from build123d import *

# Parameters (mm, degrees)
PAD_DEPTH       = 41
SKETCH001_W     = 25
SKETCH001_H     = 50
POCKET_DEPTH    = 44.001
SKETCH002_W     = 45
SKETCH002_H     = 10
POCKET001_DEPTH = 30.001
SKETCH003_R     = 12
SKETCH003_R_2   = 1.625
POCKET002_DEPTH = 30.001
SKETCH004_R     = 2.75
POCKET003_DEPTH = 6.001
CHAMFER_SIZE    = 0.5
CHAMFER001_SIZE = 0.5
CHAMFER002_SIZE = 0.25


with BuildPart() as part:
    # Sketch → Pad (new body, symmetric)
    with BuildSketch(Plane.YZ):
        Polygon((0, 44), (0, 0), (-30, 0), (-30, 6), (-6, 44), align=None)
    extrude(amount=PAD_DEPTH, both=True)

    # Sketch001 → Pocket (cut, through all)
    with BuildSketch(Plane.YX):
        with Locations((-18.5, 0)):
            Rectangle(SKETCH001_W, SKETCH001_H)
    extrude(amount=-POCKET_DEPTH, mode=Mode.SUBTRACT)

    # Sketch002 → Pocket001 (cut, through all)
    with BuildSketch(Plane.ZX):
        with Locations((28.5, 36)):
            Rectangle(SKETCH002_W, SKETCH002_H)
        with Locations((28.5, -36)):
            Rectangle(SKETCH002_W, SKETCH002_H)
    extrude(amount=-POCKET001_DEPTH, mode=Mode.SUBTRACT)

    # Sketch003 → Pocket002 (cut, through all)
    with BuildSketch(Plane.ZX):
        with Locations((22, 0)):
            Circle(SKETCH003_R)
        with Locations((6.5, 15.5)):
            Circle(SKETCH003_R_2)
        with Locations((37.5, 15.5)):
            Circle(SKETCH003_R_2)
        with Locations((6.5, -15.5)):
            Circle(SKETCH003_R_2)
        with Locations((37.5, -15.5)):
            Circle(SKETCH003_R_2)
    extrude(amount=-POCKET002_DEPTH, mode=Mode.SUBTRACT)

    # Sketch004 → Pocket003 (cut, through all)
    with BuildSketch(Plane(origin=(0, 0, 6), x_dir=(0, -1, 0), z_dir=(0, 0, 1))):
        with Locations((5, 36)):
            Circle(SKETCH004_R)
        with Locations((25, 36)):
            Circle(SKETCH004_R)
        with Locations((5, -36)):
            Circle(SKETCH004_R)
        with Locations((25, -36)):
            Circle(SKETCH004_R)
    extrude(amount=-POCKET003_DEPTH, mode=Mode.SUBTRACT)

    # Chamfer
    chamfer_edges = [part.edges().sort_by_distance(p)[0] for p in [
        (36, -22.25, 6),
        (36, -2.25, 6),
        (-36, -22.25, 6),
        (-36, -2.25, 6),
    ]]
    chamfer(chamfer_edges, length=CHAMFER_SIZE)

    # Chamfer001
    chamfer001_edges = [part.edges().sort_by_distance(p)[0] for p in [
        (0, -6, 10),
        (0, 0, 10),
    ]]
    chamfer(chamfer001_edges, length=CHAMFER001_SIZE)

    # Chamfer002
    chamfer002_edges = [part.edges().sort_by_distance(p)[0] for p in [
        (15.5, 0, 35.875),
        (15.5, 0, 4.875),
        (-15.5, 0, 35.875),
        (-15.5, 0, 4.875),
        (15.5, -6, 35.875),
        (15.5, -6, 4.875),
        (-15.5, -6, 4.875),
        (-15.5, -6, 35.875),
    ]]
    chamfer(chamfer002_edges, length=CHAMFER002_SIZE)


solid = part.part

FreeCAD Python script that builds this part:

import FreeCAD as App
import Part
import Sketcher
from FreeCAD import Vector


def edges_at(feature, points):
    """Names of the edges that pass closest to the given points."""
    edges = feature.Shape.Edges
    near = lambda p: min(range(len(edges)), key=lambda i: edges[i].distToShape(Part.Vertex(*p))[0])
    return sorted({f"Edge{near(p) + 1}" for p in points})


def add_polygon(sketch, points):
    """Adds a closed chain of lines whose ends are joined by coincident constraints."""
    first, n = sketch.GeometryCount, len(points)
    for a, b in zip(points, points[1:] + points[:1]):
        sketch.addGeometry(Part.LineSegment(App.Vector(*a, 0), App.Vector(*b, 0)), False)
    for i in range(n):
        sketch.addConstraint(Sketcher.Constraint("Coincident", first + i, 2, first + (i + 1) % n, 1))

doc = App.newDocument("Part")
body = doc.addObject("PartDesign::Body", "Body")

# Sketch on YZ plane
sketch1 = body.newObject("Sketcher::SketchObject", "Sketch")
sketch1.AttachmentSupport = (doc.getObject("YZ_Plane"), [""])
sketch1.MapMode = "FlatFace"
add_polygon(sketch1, [(0, 0), (0, 44), (-6, 44), (-30, 6), (-30, 0)])  # lines 0-4
sketch1.addConstraint(Sketcher.Constraint("Vertical", 0))
sketch1.addConstraint(Sketcher.Constraint("Horizontal", 1))
sketch1.addConstraint(Sketcher.Constraint("Vertical", 3))
sketch1.addConstraint(Sketcher.Constraint("Horizontal", 4))
sketch1.addConstraint(Sketcher.Constraint("Coincident", 4, 2, -1, 1))
sketch1.addConstraint(Sketcher.Constraint("Equal", 1, 3))
sketch1.addConstraint(Sketcher.Constraint("DistanceX", 1, 2, 1, 1, 6.0))
sketch1.addConstraint(Sketcher.Constraint("DistanceX", 4, 1, 4, 2, 30.0))
sketch1.addConstraint(Sketcher.Constraint("DistanceY", 0, 1, 0, 2, 44.0))
pad1 = body.newObject("PartDesign::Pad", "Pad")
pad1.Profile = sketch1
pad1.Length = 82
pad1.Midplane = True

# Sketch on XY plane
sketch2 = body.newObject("Sketcher::SketchObject", "Sketch001")
sketch2.AttachmentSupport = (doc.getObject("XY_Plane"), [""])
sketch2.MapMode = "FlatFace"
add_polygon(sketch2, [(25, -31), (-25, -31), (-25, -6), (25, -6)])  # lines 0-3
sketch2.addConstraint(Sketcher.Constraint("Horizontal", 0))
sketch2.addConstraint(Sketcher.Constraint("Vertical", 1))
sketch2.addConstraint(Sketcher.Constraint("Horizontal", 2))
sketch2.addConstraint(Sketcher.Constraint("Vertical", 3))
sketch2.addConstraint(Sketcher.Constraint("DistanceX", 0, 2, 0, 1, 50.0))
sketch2.addConstraint(Sketcher.Constraint("DistanceY", 1, 1, 1, 2, 25.0))
sketch2.addConstraint(Sketcher.Constraint("DistanceX", 0, 2, -1, 1, 25.0))
sketch2.addConstraint(Sketcher.Constraint("DistanceY", 0, 2, -1, 1, 31.0))
pocket1 = body.newObject("PartDesign::Pocket", "Pocket")
pocket1.Profile = sketch2
pocket1.Type = "ThroughAll"
pocket1.Reversed = True

# Sketch on XZ plane
sketch3 = body.newObject("Sketcher::SketchObject", "Sketch002")
sketch3.AttachmentSupport = (doc.getObject("XZ_Plane"), [""])
sketch3.MapMode = "FlatFace"
add_polygon(sketch3, [(41, 6), (31, 6), (31, 51), (41, 51)])  # lines 0-3
add_polygon(sketch3, [(-31, 6), (-41, 6), (-41, 51), (-31, 51)])  # lines 4-7
sketch3.addConstraint(Sketcher.Constraint("Horizontal", 0))
sketch3.addConstraint(Sketcher.Constraint("Vertical", 1))
sketch3.addConstraint(Sketcher.Constraint("Horizontal", 2))
sketch3.addConstraint(Sketcher.Constraint("Vertical", 3))
sketch3.addConstraint(Sketcher.Constraint("Horizontal", 4))
sketch3.addConstraint(Sketcher.Constraint("Vertical", 5))
sketch3.addConstraint(Sketcher.Constraint("Horizontal", 6))
sketch3.addConstraint(Sketcher.Constraint("Vertical", 7))
sketch3.addConstraint(Sketcher.Constraint("Symmetric", 3, 2, 4, 2, -2))
sketch3.addConstraint(Sketcher.Constraint("Symmetric", 1, 2, 6, 2, -2))
sketch3.addConstraint(Sketcher.Constraint("DistanceX", 0, 2, 0, 1, 10.0))
sketch3.addConstraint(Sketcher.Constraint("DistanceY", 1, 1, 1, 2, 45.0))
sketch3.addConstraint(Sketcher.Constraint("DistanceX", -1, 1, 0, 2, 31.0))
sketch3.addConstraint(Sketcher.Constraint("DistanceY", -1, 1, 0, 2, 6.0))
pocket2 = body.newObject("PartDesign::Pocket", "Pocket001")
pocket2.Profile = sketch3
pocket2.Type = "ThroughAll"
pocket2.Reversed = True

# Sketch on XZ plane
sketch4 = body.newObject("Sketcher::SketchObject", "Sketch003")
sketch4.AttachmentSupport = (doc.getObject("XZ_Plane"), [""])
sketch4.MapMode = "FlatFace"
sketch4.addGeometry(Part.Circle(Vector(0, 22, 0), Vector(0, 0, 1), 12), False)
sketch4.addGeometry(Part.Circle(Vector(15.5, 6.5, 0), Vector(0, 0, 1), 1.6), False)
sketch4.addGeometry(Part.Circle(Vector(15.5, 37.5, 0), Vector(0, 0, 1), 1.6), False)
sketch4.addGeometry(Part.Circle(Vector(-15.5, 6.5, 0), Vector(0, 0, 1), 1.6), False)
sketch4.addGeometry(Part.Circle(Vector(-15.5, 37.5, 0), Vector(0, 0, 1), 1.6), False)
sketch4.addConstraint(Sketcher.Constraint("Equal", 1, 2))
sketch4.addConstraint(Sketcher.Constraint("Equal", 2, 3))
sketch4.addConstraint(Sketcher.Constraint("Equal", 3, 4))
sketch4.addConstraint(Sketcher.Constraint("Symmetric", 1, 3, 3, 3, -2))
sketch4.addConstraint(Sketcher.Constraint("Symmetric", 2, 3, 4, 3, -2))
sketch4.addConstraint(Sketcher.Constraint("PointOnObject", 0, 3, -2))
sketch4.addConstraint(Sketcher.Constraint("Vertical", 1, 3, 2, 3))
sketch4.addConstraint(Sketcher.Constraint("Diameter", 0, 24.0))
sketch4.addConstraint(Sketcher.Constraint("Diameter", 1, 3.25))
sketch4.addConstraint(Sketcher.Constraint("DistanceY", -1, 1, 0, 3, 22.0))
sketch4.addConstraint(Sketcher.Constraint("DistanceY", 1, 3, 2, 3, 31.0))
sketch4.addConstraint(Sketcher.Constraint("DistanceX", 3, 3, 1, 3, 31.0))
sketch4.addConstraint(Sketcher.Constraint("DistanceY", -1, 1, 1, 3, 6.5))
pocket3 = body.newObject("PartDesign::Pocket", "Pocket002")
pocket3.Profile = sketch4
pocket3.Type = "ThroughAll"
pocket3.Reversed = True

# Sketch on XY plane
sketch5 = body.newObject("Sketcher::SketchObject", "Sketch004")
sketch5.AttachmentSupport = (doc.getObject("XY_Plane"), [""])
sketch5.MapMode = "FlatFace"
sketch5.AttachmentOffset = App.Placement(Vector(0, 0, 6), App.Rotation())
sketch5.addGeometry(Part.Circle(Vector(36, -5, 0), Vector(0, 0, 1), 2.8), False)
sketch5.addGeometry(Part.Circle(Vector(36, -25, 0), Vector(0, 0, 1), 2.8), False)
sketch5.addGeometry(Part.Circle(Vector(-36, -5, 0), Vector(0, 0, 1), 2.8), False)
sketch5.addGeometry(Part.Circle(Vector(-36, -25, 0), Vector(0, 0, 1), 2.8), False)
sketch5.addConstraint(Sketcher.Constraint("Equal", 0, 1))
sketch5.addConstraint(Sketcher.Constraint("Equal", 1, 2))
sketch5.addConstraint(Sketcher.Constraint("Equal", 2, 3))
sketch5.addConstraint(Sketcher.Constraint("Symmetric", 0, 3, 2, 3, -2))
sketch5.addConstraint(Sketcher.Constraint("Symmetric", 1, 3, 3, 3, -2))
sketch5.addConstraint(Sketcher.Constraint("Vertical", 0, 3, 1, 3))
sketch5.addConstraint(Sketcher.Constraint("Diameter", 0, 5.5))
sketch5.addConstraint(Sketcher.Constraint("DistanceX", -1, 1, 0, 3, 36.0))
sketch5.addConstraint(Sketcher.Constraint("DistanceY", 0, 3, -1, 1, 5.0))
sketch5.addConstraint(Sketcher.Constraint("DistanceY", 1, 3, -1, 1, 25.0))
pocket4 = body.newObject("PartDesign::Pocket", "Pocket003")
pocket4.Profile = sketch5
pocket4.Type = "ThroughAll"
doc.recompute()

chamfer = body.newObject("PartDesign::Chamfer", "Chamfer")
chamfer.Base = (pocket4, edges_at(pocket4, [
    (36, -22.25, 6),
    (36, -2.25, 6),
    (-36, -22.25, 6),
    (-36, -2.25, 6),
]))
chamfer.Size = 0.5
doc.recompute()

chamfer2 = body.newObject("PartDesign::Chamfer", "Chamfer001")
chamfer2.Base = (chamfer, edges_at(chamfer, [(0, -6, 10), (0, 0, 10)]))
chamfer2.Size = 0.5
doc.recompute()

chamfer3 = body.newObject("PartDesign::Chamfer", "Chamfer002")
chamfer3.Base = (chamfer2, edges_at(chamfer2, [
    (15.5, 0, 35.875),
    (15.5, 0, 4.875),
    (-15.5, 0, 35.875),
    (-15.5, 0, 4.875),
    (15.5, -6, 35.875),
    (15.5, -6, 4.875),
    (-15.5, -6, 4.875),
    (-15.5, -6, 35.875),
]))
chamfer3.Size = 0.25

doc.recompute()
